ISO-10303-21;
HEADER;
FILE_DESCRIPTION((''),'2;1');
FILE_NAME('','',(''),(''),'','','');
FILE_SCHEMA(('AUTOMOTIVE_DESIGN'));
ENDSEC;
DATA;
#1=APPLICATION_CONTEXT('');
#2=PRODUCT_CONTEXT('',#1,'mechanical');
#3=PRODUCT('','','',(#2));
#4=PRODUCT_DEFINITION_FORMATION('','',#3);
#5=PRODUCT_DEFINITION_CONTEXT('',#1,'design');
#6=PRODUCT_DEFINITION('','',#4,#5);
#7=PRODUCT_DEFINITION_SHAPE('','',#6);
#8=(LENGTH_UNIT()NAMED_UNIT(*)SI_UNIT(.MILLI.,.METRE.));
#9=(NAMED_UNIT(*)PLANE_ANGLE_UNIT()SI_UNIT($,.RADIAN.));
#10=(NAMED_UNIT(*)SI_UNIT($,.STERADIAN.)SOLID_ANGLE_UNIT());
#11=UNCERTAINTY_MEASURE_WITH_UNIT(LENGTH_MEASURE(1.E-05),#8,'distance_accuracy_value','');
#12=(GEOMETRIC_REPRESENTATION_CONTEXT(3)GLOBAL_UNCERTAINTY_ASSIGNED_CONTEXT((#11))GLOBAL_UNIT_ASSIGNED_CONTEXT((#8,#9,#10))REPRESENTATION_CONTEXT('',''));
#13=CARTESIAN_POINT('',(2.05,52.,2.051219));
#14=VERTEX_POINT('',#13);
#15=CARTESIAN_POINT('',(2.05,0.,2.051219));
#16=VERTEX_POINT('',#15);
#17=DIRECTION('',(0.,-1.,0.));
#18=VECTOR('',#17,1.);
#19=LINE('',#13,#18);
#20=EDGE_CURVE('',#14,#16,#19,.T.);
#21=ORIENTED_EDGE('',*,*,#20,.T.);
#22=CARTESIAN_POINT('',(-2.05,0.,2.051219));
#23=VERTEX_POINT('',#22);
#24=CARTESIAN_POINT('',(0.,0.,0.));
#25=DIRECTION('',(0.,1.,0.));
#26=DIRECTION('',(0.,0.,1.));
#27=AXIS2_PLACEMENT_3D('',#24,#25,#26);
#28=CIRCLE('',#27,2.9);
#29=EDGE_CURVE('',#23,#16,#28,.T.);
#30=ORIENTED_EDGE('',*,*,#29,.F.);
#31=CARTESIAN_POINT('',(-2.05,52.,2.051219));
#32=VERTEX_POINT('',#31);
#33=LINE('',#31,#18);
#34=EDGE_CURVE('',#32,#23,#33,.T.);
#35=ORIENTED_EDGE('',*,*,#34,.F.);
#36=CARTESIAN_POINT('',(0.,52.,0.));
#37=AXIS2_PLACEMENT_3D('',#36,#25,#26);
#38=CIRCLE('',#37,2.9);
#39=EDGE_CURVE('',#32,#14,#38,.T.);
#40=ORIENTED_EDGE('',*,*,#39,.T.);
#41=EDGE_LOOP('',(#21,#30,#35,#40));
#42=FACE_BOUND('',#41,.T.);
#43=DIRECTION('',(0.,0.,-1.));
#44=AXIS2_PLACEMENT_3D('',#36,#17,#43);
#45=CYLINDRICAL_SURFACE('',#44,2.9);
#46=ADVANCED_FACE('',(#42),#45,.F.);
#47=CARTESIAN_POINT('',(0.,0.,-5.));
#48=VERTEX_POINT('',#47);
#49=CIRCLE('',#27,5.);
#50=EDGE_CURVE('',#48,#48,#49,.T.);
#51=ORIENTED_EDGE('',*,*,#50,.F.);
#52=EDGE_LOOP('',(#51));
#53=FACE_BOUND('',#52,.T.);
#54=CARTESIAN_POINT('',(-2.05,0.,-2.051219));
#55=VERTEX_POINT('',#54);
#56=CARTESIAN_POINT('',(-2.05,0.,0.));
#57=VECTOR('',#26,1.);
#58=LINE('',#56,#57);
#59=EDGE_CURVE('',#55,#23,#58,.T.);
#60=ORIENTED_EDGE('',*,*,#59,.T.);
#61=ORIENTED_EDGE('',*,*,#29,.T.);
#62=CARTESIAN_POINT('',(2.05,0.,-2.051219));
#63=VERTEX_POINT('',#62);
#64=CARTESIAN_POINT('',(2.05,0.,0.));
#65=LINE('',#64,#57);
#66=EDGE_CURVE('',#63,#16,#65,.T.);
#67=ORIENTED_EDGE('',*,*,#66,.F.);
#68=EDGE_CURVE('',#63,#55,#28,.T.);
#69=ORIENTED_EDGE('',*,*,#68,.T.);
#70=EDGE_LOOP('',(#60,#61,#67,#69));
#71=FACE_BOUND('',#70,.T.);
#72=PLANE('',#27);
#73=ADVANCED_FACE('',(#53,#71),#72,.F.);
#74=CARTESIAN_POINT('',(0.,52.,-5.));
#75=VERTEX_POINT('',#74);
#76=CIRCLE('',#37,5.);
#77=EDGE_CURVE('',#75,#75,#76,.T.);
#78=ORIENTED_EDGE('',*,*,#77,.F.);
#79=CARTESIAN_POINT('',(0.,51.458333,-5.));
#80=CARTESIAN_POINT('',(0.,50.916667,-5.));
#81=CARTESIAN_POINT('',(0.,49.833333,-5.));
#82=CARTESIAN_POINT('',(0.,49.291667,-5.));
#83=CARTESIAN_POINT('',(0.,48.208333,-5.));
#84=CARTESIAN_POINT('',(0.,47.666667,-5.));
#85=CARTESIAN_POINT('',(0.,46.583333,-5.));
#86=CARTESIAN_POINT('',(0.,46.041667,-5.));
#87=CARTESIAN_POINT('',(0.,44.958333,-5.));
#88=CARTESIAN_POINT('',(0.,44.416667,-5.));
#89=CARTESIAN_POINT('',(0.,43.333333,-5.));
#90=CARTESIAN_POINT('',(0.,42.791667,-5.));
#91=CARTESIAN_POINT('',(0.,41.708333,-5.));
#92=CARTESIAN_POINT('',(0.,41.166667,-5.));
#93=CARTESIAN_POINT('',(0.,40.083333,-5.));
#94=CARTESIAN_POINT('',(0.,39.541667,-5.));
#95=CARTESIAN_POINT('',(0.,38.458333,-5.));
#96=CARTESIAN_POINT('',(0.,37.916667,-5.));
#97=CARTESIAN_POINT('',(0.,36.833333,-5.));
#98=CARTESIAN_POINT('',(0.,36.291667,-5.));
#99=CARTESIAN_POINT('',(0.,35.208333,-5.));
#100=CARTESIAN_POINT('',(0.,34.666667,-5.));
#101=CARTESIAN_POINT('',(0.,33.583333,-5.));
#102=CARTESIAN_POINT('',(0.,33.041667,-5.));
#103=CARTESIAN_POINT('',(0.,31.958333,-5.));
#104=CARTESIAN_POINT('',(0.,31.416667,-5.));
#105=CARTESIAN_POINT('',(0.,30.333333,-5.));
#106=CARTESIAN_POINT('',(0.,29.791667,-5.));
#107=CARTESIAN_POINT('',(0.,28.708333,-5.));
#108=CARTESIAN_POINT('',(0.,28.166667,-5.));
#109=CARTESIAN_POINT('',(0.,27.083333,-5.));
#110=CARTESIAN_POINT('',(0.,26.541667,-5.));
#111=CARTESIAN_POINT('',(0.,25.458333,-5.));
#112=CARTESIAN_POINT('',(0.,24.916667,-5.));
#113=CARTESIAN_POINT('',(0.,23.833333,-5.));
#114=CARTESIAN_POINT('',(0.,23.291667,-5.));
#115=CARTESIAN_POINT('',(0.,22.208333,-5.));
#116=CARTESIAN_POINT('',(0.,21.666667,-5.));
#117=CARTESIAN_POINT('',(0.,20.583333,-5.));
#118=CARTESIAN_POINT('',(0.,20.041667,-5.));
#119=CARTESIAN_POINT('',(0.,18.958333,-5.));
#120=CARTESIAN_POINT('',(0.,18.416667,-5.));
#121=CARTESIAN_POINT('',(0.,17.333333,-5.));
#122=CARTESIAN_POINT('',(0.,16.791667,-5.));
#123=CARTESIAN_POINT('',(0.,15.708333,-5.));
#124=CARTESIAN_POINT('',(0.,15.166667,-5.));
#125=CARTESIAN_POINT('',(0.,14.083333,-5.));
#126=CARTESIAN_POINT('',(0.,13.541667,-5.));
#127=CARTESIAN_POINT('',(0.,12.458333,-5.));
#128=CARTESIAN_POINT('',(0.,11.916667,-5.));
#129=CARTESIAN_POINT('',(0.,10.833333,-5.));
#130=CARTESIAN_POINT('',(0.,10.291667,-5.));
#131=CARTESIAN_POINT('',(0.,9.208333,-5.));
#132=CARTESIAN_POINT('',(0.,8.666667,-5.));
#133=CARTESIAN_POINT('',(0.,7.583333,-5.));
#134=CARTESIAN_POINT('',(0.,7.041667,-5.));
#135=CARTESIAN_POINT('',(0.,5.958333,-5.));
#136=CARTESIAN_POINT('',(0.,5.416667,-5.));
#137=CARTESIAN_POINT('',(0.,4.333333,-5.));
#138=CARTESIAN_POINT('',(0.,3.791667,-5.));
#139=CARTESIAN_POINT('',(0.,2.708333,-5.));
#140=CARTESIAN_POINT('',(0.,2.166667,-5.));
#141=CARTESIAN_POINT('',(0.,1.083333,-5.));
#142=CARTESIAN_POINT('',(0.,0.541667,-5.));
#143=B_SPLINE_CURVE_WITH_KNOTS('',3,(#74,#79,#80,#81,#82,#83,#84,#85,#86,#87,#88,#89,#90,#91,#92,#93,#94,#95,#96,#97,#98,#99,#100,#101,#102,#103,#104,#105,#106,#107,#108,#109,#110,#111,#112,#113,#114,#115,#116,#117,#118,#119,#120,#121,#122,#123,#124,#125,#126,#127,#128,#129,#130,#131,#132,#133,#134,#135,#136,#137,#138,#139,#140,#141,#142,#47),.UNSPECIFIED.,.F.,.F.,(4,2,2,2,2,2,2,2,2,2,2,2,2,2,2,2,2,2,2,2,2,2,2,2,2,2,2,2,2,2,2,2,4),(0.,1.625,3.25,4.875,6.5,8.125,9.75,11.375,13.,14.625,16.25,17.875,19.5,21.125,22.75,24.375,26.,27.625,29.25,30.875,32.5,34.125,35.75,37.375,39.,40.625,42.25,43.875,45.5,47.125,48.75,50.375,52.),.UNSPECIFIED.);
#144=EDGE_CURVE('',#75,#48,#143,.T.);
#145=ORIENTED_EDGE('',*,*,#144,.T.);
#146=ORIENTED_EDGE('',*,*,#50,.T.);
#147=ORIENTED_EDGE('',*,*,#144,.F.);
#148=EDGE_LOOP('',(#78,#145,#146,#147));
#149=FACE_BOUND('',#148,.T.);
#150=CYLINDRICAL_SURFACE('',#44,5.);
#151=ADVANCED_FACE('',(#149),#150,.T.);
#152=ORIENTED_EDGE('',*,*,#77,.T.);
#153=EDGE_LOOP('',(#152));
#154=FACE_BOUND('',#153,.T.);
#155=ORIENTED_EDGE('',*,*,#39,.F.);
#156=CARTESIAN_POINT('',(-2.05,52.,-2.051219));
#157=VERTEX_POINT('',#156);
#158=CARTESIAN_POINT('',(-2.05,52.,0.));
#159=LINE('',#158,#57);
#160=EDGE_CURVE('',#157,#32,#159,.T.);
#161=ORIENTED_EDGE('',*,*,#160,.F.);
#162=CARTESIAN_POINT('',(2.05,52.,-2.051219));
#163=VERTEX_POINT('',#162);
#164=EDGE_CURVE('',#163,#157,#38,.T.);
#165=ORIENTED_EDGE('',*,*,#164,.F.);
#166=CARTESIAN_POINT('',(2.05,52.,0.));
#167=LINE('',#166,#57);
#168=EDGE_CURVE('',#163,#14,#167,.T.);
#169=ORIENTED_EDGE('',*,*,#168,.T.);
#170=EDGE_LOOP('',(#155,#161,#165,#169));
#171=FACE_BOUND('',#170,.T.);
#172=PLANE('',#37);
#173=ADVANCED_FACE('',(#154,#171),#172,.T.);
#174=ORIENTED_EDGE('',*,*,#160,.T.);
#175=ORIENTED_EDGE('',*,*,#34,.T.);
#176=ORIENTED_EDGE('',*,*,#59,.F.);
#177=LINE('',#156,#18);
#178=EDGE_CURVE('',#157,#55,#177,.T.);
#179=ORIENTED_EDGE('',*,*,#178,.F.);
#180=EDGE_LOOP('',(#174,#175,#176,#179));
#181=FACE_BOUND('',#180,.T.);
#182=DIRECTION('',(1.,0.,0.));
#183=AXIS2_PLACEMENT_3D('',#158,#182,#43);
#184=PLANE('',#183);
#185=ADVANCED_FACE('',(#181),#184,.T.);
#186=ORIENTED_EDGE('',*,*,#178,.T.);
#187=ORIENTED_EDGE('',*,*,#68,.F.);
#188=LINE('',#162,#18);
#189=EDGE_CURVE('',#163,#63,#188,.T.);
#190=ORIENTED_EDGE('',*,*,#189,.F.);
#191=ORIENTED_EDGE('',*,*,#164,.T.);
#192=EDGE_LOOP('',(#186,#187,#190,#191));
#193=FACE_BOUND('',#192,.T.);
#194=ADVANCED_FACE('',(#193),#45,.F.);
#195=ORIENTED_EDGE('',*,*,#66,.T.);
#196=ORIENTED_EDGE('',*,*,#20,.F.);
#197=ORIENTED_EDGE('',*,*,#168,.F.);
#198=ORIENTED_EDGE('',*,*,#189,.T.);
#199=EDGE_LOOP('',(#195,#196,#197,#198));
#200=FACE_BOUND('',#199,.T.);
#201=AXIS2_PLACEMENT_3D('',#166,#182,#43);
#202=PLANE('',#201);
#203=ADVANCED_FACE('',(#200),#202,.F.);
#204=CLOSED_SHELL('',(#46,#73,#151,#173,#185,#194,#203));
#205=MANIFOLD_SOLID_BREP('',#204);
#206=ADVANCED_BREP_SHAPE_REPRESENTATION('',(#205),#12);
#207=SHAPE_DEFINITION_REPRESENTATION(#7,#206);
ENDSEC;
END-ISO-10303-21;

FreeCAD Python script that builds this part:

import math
import FreeCAD as App
import Part
import Sketcher
from FreeCAD import Vector
Q = App.Units.Quantity

doc = App.newDocument("Part")
body = doc.addObject("PartDesign::Body", "Body")

# Sketch on XZ plane
sketch1 = doc.addObject("Sketcher::SketchObject", "Sketch")
body.addObject(sketch1)
sketch1.AttachmentSupport = (doc.XZ_Plane, [""])
sketch1.MapMode = "FlatFace"
sketch1.addGeometry([
    Part.Circle(Vector(0, 0, 0), Vector(0, 0, 1), 5),  # 0
    Part.LineSegment(Vector(-2, 2.1, 0), Vector(-2, -2.1, 0)),  # 1
    Part.ArcOfCircle(Part.Circle(Vector(0, 0, 0), Vector(0, 0, 1), 2.9), math.radians(-135), math.radians(-45)),  # 2
    Part.LineSegment(Vector(2, -2.1, 0), Vector(2, 2.1, 0)),  # 3
    Part.ArcOfCircle(Part.Circle(Vector(0, 0, 0), Vector(0, 0, 1), 2.9), math.radians(45), math.radians(135)),  # 4
], False)
sketch1.addConstraint([
    Sketcher.Constraint("Coincident", 1, 2, 2, 1),
    Sketcher.Constraint("Coincident", 2, 2, 3, 1),
    Sketcher.Constraint("Coincident", 3, 2, 4, 1),
    Sketcher.Constraint("Coincident", 4, 2, 1, 1),
    Sketcher.Constraint("Vertical", 1),
    Sketcher.Constraint("Vertical", 3),
    Sketcher.Constraint("Coincident", 0, 3, -1, 1),
    Sketcher.Constraint("Coincident", 2, 3, -1, 1),
    Sketcher.Constraint("Coincident", 4, 3, -1, 1),
    Sketcher.Constraint("Equal", 2, 4),
    Sketcher.Constraint("Horizontal", 1, 2, 2, 2),
    Sketcher.Constraint("Diameter", 0, Q("10 mm")),
    Sketcher.Constraint("Radius", 2, Q("2.9 mm")),
    Sketcher.Constraint("DistanceX", 1, 2, 2, 2, Q("4.1 mm")),
])
pad1 = doc.addObject("PartDesign::Pad", "Pad")
body.addObject(pad1)
pad1.Profile = sketch1
pad1.Length = 52
pad1.Reversed = True

doc.recompute()
